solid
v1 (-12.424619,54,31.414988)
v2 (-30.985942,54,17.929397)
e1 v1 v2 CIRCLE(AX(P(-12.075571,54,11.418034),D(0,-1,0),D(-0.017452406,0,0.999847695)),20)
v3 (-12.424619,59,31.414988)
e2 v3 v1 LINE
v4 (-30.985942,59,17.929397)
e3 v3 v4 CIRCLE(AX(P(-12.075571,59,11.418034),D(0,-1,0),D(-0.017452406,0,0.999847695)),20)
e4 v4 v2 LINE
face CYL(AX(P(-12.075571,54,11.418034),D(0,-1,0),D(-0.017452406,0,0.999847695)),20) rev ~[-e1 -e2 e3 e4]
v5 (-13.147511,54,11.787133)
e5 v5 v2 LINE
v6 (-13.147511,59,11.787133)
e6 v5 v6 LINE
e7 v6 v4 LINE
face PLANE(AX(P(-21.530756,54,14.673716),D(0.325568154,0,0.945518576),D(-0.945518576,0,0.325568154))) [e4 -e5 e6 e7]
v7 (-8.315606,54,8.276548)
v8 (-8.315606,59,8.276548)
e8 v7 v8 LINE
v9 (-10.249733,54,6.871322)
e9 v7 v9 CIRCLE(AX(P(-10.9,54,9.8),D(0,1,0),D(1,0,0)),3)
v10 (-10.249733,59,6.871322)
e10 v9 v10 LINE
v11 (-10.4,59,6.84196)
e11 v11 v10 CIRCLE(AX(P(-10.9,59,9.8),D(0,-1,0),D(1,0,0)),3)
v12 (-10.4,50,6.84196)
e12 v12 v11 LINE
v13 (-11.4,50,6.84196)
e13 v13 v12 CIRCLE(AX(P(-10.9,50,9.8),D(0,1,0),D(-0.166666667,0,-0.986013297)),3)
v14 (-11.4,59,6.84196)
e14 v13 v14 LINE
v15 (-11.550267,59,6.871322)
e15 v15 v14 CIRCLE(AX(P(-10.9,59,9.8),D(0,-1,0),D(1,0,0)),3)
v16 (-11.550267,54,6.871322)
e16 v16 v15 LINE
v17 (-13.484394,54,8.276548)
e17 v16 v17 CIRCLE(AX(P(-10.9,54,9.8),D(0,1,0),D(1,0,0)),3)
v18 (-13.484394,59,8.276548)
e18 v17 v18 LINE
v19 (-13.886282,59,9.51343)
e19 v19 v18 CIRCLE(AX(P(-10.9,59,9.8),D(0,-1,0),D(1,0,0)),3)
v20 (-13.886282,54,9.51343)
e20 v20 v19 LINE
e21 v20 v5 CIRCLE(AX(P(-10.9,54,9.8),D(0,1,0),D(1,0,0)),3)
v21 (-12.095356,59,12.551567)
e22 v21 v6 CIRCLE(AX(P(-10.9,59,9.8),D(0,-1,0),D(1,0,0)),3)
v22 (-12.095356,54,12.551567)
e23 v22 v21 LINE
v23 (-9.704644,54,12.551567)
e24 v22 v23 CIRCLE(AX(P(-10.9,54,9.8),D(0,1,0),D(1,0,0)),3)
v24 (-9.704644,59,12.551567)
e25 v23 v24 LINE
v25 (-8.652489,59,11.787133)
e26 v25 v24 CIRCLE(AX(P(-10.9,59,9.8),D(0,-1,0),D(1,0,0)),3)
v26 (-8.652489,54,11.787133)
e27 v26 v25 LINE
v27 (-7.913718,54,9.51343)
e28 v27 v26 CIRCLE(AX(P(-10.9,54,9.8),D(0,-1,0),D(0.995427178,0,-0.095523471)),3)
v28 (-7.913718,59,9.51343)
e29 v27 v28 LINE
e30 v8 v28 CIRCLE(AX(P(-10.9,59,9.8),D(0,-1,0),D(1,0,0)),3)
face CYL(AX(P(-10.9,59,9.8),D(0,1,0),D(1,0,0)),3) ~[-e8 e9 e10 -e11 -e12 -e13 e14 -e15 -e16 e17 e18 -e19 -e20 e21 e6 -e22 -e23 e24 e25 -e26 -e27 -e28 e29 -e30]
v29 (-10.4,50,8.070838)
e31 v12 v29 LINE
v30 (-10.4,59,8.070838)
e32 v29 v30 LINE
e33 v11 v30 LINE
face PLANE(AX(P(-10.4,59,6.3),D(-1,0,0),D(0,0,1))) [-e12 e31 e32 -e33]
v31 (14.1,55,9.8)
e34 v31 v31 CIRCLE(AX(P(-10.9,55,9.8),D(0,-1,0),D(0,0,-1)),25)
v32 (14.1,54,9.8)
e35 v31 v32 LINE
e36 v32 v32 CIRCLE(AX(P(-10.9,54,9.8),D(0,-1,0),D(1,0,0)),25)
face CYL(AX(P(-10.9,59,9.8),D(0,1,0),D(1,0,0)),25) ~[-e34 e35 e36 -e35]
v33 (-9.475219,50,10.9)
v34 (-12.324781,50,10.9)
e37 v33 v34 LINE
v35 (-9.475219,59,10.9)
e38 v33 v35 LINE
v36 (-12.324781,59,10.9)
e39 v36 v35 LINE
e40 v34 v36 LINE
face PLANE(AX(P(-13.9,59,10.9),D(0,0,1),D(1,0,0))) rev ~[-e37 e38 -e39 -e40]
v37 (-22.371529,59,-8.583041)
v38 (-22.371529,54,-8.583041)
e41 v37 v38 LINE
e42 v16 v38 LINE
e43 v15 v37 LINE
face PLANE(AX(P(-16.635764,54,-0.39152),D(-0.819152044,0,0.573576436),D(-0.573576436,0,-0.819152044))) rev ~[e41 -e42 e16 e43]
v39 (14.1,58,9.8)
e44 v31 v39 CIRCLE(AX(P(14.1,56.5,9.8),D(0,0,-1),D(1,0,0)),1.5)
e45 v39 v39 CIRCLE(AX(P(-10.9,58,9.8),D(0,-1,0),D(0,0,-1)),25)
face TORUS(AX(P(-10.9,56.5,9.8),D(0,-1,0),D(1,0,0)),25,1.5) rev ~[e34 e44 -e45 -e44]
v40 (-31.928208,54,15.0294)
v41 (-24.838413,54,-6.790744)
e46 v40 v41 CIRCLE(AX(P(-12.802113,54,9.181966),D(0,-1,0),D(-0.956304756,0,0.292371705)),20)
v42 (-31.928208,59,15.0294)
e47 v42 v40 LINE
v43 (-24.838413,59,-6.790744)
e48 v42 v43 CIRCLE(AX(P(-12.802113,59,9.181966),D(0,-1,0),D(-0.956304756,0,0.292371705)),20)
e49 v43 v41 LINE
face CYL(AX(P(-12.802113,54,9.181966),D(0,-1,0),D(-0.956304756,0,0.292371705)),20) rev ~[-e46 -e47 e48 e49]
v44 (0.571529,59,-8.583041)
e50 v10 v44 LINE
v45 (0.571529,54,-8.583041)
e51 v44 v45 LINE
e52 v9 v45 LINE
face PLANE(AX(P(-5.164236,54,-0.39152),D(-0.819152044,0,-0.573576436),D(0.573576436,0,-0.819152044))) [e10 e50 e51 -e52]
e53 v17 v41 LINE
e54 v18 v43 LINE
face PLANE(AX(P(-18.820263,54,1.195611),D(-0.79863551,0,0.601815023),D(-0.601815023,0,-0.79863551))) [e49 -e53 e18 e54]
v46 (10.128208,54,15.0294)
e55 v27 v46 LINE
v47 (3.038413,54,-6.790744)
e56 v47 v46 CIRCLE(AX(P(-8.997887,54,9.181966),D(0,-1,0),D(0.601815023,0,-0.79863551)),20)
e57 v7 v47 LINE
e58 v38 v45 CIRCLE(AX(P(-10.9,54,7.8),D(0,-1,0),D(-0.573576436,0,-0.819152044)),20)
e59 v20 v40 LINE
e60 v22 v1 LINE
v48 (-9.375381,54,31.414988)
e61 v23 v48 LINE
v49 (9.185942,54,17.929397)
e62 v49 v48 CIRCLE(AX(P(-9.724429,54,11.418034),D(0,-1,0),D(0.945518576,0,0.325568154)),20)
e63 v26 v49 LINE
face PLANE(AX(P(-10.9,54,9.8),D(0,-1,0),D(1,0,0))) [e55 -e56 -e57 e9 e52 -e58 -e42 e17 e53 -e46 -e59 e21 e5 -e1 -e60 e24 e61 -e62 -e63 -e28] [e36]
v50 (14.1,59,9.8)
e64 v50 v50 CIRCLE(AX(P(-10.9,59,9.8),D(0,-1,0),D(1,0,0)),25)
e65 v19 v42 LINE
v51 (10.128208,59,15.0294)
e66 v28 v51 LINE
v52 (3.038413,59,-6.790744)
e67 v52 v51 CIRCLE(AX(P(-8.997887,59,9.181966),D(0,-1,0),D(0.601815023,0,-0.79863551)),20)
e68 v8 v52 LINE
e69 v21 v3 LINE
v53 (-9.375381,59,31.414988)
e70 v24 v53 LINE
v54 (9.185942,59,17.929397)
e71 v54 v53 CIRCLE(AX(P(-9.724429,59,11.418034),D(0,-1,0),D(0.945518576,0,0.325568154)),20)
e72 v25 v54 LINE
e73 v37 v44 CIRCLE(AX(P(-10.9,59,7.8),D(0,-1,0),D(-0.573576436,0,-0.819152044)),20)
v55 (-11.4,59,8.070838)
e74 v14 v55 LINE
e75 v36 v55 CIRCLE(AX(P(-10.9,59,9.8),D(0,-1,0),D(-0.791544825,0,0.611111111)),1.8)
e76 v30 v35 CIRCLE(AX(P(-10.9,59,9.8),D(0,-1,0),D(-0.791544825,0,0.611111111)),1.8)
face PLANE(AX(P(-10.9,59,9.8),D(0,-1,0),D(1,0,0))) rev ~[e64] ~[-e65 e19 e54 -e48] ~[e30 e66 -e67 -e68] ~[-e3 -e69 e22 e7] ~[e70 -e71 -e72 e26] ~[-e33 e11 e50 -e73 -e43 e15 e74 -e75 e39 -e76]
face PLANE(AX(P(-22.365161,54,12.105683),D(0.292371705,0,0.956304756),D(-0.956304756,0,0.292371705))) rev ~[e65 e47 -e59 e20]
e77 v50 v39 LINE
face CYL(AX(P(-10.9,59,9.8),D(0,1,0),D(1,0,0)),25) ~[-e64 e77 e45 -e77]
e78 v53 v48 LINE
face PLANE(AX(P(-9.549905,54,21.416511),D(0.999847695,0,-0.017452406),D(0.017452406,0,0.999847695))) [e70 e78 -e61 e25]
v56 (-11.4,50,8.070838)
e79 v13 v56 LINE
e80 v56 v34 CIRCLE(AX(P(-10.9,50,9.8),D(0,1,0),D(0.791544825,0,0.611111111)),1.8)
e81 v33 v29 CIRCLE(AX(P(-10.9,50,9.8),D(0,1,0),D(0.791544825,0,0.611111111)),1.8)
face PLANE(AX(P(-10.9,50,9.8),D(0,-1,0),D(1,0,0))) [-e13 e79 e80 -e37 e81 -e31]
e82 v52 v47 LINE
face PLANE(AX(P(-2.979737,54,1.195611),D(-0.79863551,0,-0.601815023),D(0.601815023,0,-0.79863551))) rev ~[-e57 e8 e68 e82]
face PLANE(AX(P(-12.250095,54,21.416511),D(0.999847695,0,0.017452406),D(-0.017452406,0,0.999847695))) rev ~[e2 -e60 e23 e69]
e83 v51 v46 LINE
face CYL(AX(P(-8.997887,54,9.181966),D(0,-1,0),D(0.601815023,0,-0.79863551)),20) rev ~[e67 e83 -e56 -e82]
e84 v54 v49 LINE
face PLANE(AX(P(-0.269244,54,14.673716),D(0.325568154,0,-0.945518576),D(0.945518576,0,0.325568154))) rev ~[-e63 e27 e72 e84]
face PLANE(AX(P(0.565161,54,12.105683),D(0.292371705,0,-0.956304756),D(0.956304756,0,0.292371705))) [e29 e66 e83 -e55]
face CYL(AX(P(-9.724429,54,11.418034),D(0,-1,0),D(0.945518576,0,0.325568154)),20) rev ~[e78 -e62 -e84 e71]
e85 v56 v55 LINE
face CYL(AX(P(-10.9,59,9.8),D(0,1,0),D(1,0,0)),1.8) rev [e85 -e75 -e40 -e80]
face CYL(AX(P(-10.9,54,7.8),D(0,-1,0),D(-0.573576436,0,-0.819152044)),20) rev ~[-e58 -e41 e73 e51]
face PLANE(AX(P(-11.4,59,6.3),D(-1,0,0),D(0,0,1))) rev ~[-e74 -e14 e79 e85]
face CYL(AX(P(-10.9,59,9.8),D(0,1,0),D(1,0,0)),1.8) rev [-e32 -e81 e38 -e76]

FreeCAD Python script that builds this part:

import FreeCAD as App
import Part
import Sketcher


def add_polygon(sketch, points):
    """Adds a closed chain of lines whose ends are joined by coincident constraints."""
    first, n = sketch.GeometryCount, len(points)
    for a, b in zip(points, points[1:] + points[:1]):
        sketch.addGeometry(Part.LineSegment(App.Vector(*a, 0), App.Vector(*b, 0)), False)
    for i in range(n):
        sketch.addConstraint(Sketcher.Constraint("Coincident", first + i, 2, first + (i + 1) % n, 1))

doc = App.newDocument("Part")
body = doc.addObject("PartDesign::Body", "Body")

# Sketch on XY plane
sketch1 = body.newObject("Sketcher::SketchObject", "Sketch")
sketch1.AttachmentSupport = (doc.getObject("XY_Plane"), [""])
sketch1.MapMode = "FlatFace"
add_polygon(sketch1, [(-3, 11), (-3, 1), (7, 1), (7, 11)])  # lines 0-3
sketch1.addConstraint([
    Sketcher.Constraint("Vertical", 0),
    Sketcher.Constraint("Horizontal", 1),
    Sketcher.Constraint("Vertical", 2),
    Sketcher.Constraint("Horizontal", 3),
    Sketcher.Constraint("Equal", 3, 0),
    Sketcher.Constraint("DistanceX", 1, 1, 1, 2, 10.0),
    Sketcher.Constraint("DistanceX", 0, 2, -1, 1, 3.0),
    Sketcher.Constraint("DistanceY", -1, 1, 0, 2, 1.1),
])
pad1 = body.newObject("PartDesign::Pad", "Pad")
pad1.Profile = sketch1
pad1.Length = 10
body2 = doc.addObject("PartDesign::Body", "Body001")

# Sketch on XY plane
sketch2 = body2.newObject("Sketcher::SketchObject", "Sketch001")
sketch2.AttachmentSupport = (doc.getObject("XY_Plane001"), [""])
sketch2.MapMode = "FlatFace"
sketch2.addGeometry(Part.Circle(App.Vector(0, 0, 0), App.Vector(0, 0, 1), 1.8), False)
sketch2.addConstraint([
    Sketcher.Constraint("Coincident", 0, 3, -1, 1),
    Sketcher.Constraint("Diameter", 0, 3.6),
])
pad2 = body2.newObject("PartDesign::Pad", "Pad001")
pad2.Profile = sketch2
pad2.Length = 9
doc.recompute()

boolean = body2.newObject("PartDesign::Boolean", "Boolean")
boolean.Type = "Cut"
boolean.addObjects([body])
body3 = doc.addObject("PartDesign::Body", "Body002")

# Sketch on XY plane
sketch3 = body3.newObject("Sketcher::SketchObject", "Sketch002")
sketch3.AttachmentSupport = (doc.getObject("XY_Plane002"), [""])
sketch3.MapMode = "FlatFace"
add_polygon(sketch3, [(-0.5, -1.5), (-0.5, -3.5), (0.5, -3.5), (0.5, -1.5)])  # lines 0-3
sketch3.addConstraint([
    Sketcher.Constraint("Vertical", 0),
    Sketcher.Constraint("Horizontal", 1),
    Sketcher.Constraint("Vertical", 2),
    Sketcher.Constraint("Horizontal", 3),
    Sketcher.Constraint("DistanceX", 1, 1, 1, 2, 1.0),
    Sketcher.Constraint("DistanceY", 0, 2, 0, 1, 2.0),
    Sketcher.Constraint("DistanceX", 0, 2, -1, 1, 0.5),
    Sketcher.Constraint("DistanceY", 0, 2, -1, 1, 3.5),
])
pad3 = body3.newObject("PartDesign::Pad", "Pad002")
pad3.Profile = sketch3
pad3.Length = 9
doc.recompute()

boolean2 = body3.newObject("PartDesign::Boolean", "Boolean001")
boolean2.Type = "Fuse"
boolean2.addObjects([body2])
body4 = doc.addObject("PartDesign::Body", "Body003")

# Sketch on XY plane
sketch4 = body4.newObject("Sketcher::SketchObject", "Sketch003")
sketch4.AttachmentSupport = (doc.getObject("XY_Plane003"), [""])
sketch4.MapMode = "FlatFace"
sketch4.addGeometry(Part.Circle(App.Vector(0, 0, 0), App.Vector(0, 0, 1), 3), False)
sketch4.addConstraint([
    Sketcher.Constraint("Coincident", 0, 3, -1, 1),
    Sketcher.Constraint("Diameter", 0, 6.0),
])
pad4 = body4.newObject("PartDesign::Pad", "Pad003")
pad4.Profile = sketch4
pad4.Length = 9
body5 = doc.addObject("PartDesign::Body", "Body004")

# Sketch on XZ plane
sketch5 = body5.newObject("Sketcher::SketchObject", "Sketch004")
sketch5.AttachmentSupport = (doc.getObject("XZ_Plane004"), [""])
sketch5.MapMode = "FlatFace"
add_polygon(sketch5, [(0, 10), (0, 0), (20, 0), (20, 10)])  # lines 0-3
sketch5.addConstraint([
    Sketcher.Constraint("Vertical", 0),
    Sketcher.Constraint("Horizontal", 1),
    Sketcher.Constraint("Vertical", 2),
    Sketcher.Constraint("Horizontal", 3),
    Sketcher.Constraint("Coincident", 0, 2, -1, 1),
    Sketcher.Constraint("DistanceX", 1, 1, 1, 2, 20.0),
    Sketcher.Constraint("DistanceY", 0, 2, 0, 1, 10.0),
])
revolution = body5.newObject("PartDesign::Revolution", "Revolution")
revolution.Profile = sketch5
revolution.ReferenceAxis = (sketch5, ["V_Axis"])
revolution.Angle = 70
body6 = doc.addObject("PartDesign::Body", "Body005")
doc.recompute()

body5.Placement = App.Placement(App.Vector(0, -2, 0), App.Rotation(App.Vector(0, 0, 1), 235))
boolean3 = body6.newObject("PartDesign::Boolean", "Boolean002")
boolean3.Type = "Fuse"
boolean3.addObjects([body5])
body7 = doc.addObject("PartDesign::Body", "Body006")
body7.AllowCompound = True
doc.recompute()

body7.BaseFeature = body6
doc.recompute()

body8 = doc.addObject("PartDesign::Body", "Body007")
body8.BaseFeature = body6
body8.Placement = App.Placement(App.Vector(0, 0, 0), App.Rotation(App.Vector(0, 0, 1), 72))
boolean4 = body7.newObject("PartDesign::Boolean", "Boolean003")
boolean4.Type = "Fuse"
boolean4.addObjects([body8])
doc.recompute()

body9 = doc.addObject("PartDesign::Body", "Body008")
body9.BaseFeature = body6
body9.Placement = App.Placement(App.Vector(0, 0, 0), App.Rotation(App.Vector(0, 0, 1), 144))
boolean5 = body7.newObject("PartDesign::Boolean", "Boolean004")
boolean5.Type = "Fuse"
boolean5.addObjects([body9])
doc.recompute()

body10 = doc.addObject("PartDesign::Body", "Body009")
body10.BaseFeature = body6
body10.Placement = App.Placement(App.Vector(0, 0, 0), App.Rotation(App.Vector(0, 0, 1), 216))
boolean6 = body7.newObject("PartDesign::Boolean", "Boolean005")
boolean6.Type = "Fuse"
boolean6.addObjects([body10])
doc.recompute()

body6.Placement = App.Placement(App.Vector(0, 0, 0), App.Rotation(App.Vector(0, 0, 1), 288))
boolean7 = body7.newObject("PartDesign::Boolean", "Boolean006")
boolean7.Type = "Fuse"
boolean7.addObjects([body6])
body11 = doc.addObject("PartDesign::Body", "Body010")

# Sketch on XZ plane
sketch6 = body11.newObject("Sketcher::SketchObject", "Sketch005")
sketch6.AttachmentSupport = (doc.getObject("XZ_Plane010"), [""])
sketch6.MapMode = "FlatFace"
sketch6.addGeometry(Part.Circle(App.Vector(25, 2.5, 0), App.Vector(0, 0, 1), 1.5), False)
sketch6.addConstraint([
    Sketcher.Constraint("Diameter", 0, 3.0),
    Sketcher.Constraint("DistanceX", -1, 1, 0, 3, 25.0),
    Sketcher.Constraint("DistanceY", -1, 1, 0, 3, 2.5),
])
revolution2 = body11.newObject("PartDesign::Revolution", "Revolution001")
revolution2.Profile = sketch6
revolution2.ReferenceAxis = (sketch6, ["V_Axis"])
revolution2.Angle = 360
body12 = doc.addObject("PartDesign::Body", "Body011")

# Sketch on XY plane
sketch7 = body12.newObject("Sketcher::SketchObject", "Sketch006")
sketch7.AttachmentSupport = (doc.getObject("XY_Plane011"), [""])
sketch7.MapMode = "FlatFace"
sketch7.addGeometry(Part.Circle(App.Vector(0, 0, 0), App.Vector(0, 0, 1), 25), False)
sketch7.addConstraint([
    Sketcher.Constraint("Coincident", 0, 3, -1, 1),
    Sketcher.Constraint("Diameter", 0, 50.0),
])
pad5 = body12.newObject("PartDesign::Pad", "Pad004")
pad5.Profile = sketch7
pad5.Length = 5
doc.recompute()

boolean8 = body12.newObject("PartDesign::Boolean", "Boolean007")
boolean8.Type = "Cut"
boolean8.addObjects([body11])
doc.recompute()

boolean9 = body12.newObject("PartDesign::Boolean", "Boolean008")
boolean9.Type = "Cut"
boolean9.addObjects([body7])
doc.recompute()

boolean10 = body12.newObject("PartDesign::Boolean", "Boolean009")
boolean10.Type = "Fuse"
boolean10.addObjects([body4])
doc.recompute()

boolean11 = body12.newObject("PartDesign::Boolean", "Boolean010")
boolean11.Type = "Cut"
boolean11.addObjects([body3])
body13 = doc.addObject("PartDesign::Body", "Body012")
doc.recompute()

body12.Placement = App.Placement(App.Vector(0, 0, 0), App.Rotation(App.Vector(1, 0, 0), 90))
boolean12 = body13.newObject("PartDesign::Boolean", "Boolean011")
boolean12.Type = "Fuse"
boolean12.addObjects([body12])
body14 = doc.addObject("PartDesign::Body", "Body013")
doc.recompute()

body13.Placement = App.Placement(App.Vector(-10.9, -46, 9.8), App.Rotation(App.Vector(0, 0, 1), 180))
boolean13 = body14.newObject("PartDesign::Boolean", "Boolean012")
boolean13.Type = "Fuse"
boolean13.addObjects([body13])
body15 = doc.addObject("PartDesign::Body", "Body014")
doc.recompute()

body14.Placement = App.Placement(App.Vector(-21.8, 13, 0), App.Rotation(App.Vector(0, 0, 1), 180))
boolean14 = body15.newObject("PartDesign::Boolean", "Boolean013")
boolean14.Type = "Fuse"
boolean14.addObjects([body14])

doc.recompute()
